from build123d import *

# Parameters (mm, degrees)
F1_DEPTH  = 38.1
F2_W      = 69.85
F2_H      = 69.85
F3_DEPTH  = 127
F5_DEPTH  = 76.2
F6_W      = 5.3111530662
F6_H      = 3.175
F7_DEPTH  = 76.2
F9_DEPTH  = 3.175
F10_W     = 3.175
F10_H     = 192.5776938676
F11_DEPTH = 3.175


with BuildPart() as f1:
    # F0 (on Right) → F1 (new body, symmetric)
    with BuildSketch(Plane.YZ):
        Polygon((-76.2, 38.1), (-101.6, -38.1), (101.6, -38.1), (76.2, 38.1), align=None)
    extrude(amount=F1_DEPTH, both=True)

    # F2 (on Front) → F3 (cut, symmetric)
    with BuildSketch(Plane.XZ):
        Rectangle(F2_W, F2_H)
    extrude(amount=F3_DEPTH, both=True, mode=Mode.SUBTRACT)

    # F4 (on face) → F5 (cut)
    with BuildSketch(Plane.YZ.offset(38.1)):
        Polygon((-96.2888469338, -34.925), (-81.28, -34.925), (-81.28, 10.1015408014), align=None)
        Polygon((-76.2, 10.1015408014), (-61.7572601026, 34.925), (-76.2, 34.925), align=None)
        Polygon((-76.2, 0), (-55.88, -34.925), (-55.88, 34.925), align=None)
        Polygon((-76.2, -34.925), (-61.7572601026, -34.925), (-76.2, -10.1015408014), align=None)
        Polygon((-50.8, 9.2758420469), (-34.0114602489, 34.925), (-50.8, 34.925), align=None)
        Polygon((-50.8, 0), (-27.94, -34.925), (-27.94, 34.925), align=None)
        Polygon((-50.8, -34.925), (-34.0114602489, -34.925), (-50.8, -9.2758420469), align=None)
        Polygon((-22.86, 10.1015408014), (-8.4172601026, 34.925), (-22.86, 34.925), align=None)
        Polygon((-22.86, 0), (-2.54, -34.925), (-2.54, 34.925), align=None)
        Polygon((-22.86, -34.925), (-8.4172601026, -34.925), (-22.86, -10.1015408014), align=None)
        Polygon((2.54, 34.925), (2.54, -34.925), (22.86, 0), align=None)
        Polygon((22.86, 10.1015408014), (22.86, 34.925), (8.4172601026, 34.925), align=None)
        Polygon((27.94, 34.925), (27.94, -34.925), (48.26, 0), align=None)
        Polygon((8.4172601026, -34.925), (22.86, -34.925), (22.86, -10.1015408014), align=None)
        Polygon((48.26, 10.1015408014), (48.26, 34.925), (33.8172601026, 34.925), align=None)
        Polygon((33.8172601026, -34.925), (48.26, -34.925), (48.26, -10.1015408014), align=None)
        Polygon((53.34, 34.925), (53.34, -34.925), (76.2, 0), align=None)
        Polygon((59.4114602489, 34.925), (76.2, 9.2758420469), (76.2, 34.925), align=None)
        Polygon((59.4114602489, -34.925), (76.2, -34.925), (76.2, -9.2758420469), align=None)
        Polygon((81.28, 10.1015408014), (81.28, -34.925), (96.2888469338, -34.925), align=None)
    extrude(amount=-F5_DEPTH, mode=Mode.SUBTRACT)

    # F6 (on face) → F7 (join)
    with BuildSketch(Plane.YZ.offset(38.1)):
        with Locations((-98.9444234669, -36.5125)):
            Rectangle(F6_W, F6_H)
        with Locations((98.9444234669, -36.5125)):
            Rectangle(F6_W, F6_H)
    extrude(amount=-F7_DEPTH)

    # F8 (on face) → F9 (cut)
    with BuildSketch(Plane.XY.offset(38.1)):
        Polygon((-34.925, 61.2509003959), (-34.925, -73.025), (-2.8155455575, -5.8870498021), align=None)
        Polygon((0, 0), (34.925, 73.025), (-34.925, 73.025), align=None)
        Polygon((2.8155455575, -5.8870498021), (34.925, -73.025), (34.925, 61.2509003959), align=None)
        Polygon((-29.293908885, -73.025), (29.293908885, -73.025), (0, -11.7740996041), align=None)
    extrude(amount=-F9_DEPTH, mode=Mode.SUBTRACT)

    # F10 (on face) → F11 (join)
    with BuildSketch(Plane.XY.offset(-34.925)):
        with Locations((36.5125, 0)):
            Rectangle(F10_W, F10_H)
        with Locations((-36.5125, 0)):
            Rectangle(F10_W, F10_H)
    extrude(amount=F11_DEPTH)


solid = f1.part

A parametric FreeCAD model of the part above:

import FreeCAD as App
import Part
import Sketcher
Q = App.Units.Quantity

doc = App.newDocument("Part")
params = doc.addObject("Spreadsheet::Sheet", "Params")
for row, (alias, value) in enumerate([
    ("sketch1_width", "8 in"),
    ("sketch1_width2", "6 in"),
    ("pad1_length", "3 in"),
    ("sketch2_width", "2.75 in"),
    ("pocket1_length", "10 in"),
    ("sketch3_height", "2.75 in"),
    ("pocket2_length", "3 in"),
    ("sketch4_height", "0.125 in"),
    ("pad2_length", "3 in"),
    ("sketch5_width", "2.75 in"),
    ("pocket3_length", "0.125 in"),
    ("sketch6_width", "0.125 in"),
    ("pad3_length", "0.125 in"),
], start=1):
    params.set(f"A{row}", alias)
    params.set(f"B{row}", "=" + value)
    params.setAlias(f"B{row}", alias)

body = doc.addObject("PartDesign::Body", "Body")

sketch1 = body.newObject("Sketcher::SketchObject", "Sketch")
sketch1.AttachmentSupport = (doc.getObject("YZ_Plane"), [""])
sketch1.MapMode = "FlatFace"
sketch1.addGeometry([
    Part.LineSegment(App.Vector(-76, 38, 0), App.Vector(-102, -38, 0)),
    Part.LineSegment(App.Vector(-102, -38, 0), App.Vector(102, -38, 0)),
    Part.LineSegment(App.Vector(102, -38, 0), App.Vector(76, 38, 0)),
    Part.LineSegment(App.Vector(76, 38, 0), App.Vector(-76, 38, 0)),
], False)
sketch1.addConstraint([
    Sketcher.Constraint("Coincident", 0, 2, 1, 1),
    Sketcher.Constraint("Coincident", 1, 2, 2, 1),
    Sketcher.Constraint("Coincident", 2, 2, 3, 1),
    Sketcher.Constraint("Coincident", 3, 2, 0, 1),
    Sketcher.Constraint("Horizontal", 1),
    Sketcher.Constraint("Horizontal", 3),
    Sketcher.Constraint("Equal", 0, 2),
    Sketcher.Constraint("DistanceX", 1, 1, 1, 2, Q("8 in")),
    Sketcher.Constraint("DistanceX", 3, 2, 3, 1, Q("6 in")),
    Sketcher.Constraint("DistanceX", 0, 2, -1, 1, Q("4 in")),
    Sketcher.Constraint("DistanceY", 1, 2, 2, 2, Q("3 in")),
    Sketcher.Constraint("DistanceY", 0, 2, -1, 1, Q("1.5 in")),
])
sketch1.setExpression("Constraints[7]", "Params.sketch1_width")
sketch1.setExpression("Constraints[8]", "Params.sketch1_width2")
pad1 = body.newObject("PartDesign::Pad", "Pad")
pad1.Profile = sketch1
pad1.setExpression("Length", "Params.pad1_length")
pad1.Midplane = True

sketch2 = body.newObject("Sketcher::SketchObject", "Sketch001")
sketch2.AttachmentSupport = (doc.getObject("XZ_Plane"), [""])
sketch2.MapMode = "FlatFace"
sketch2.addGeometry([
    Part.LineSegment(App.Vector(-35, 35, 0), App.Vector(-35, -35, 0)),
    Part.LineSegment(App.Vector(-35, -35, 0), App.Vector(35, -35, 0)),
    Part.LineSegment(App.Vector(35, -35, 0), App.Vector(35, 35, 0)),
    Part.LineSegment(App.Vector(35, 35, 0), App.Vector(-35, 35, 0)),
], False)
sketch2.addConstraint([
    Sketcher.Constraint("Coincident", 0, 2, 1, 1),
    Sketcher.Constraint("Coincident", 1, 2, 2, 1),
    Sketcher.Constraint("Coincident", 2, 2, 3, 1),
    Sketcher.Constraint("Coincident", 3, 2, 0, 1),
    Sketcher.Constraint("Vertical", 0),
    Sketcher.Constraint("Horizontal", 1),
    Sketcher.Constraint("Vertical", 2),
    Sketcher.Constraint("Horizontal", 3),
    Sketcher.Constraint("Symmetric", 0, 2, 2, 2, -1, 1),
    Sketcher.Constraint("Equal", 3, 0),
    Sketcher.Constraint("DistanceX", 1, 1, 1, 2, Q("2.75 in")),
])
sketch2.setExpression("Constraints[10]", "Params.sketch2_width")
pocket1 = body.newObject("PartDesign::Pocket", "Pocket")
pocket1.Profile = sketch2
pocket1.setExpression("Length", "Params.pocket1_length")
pocket1.Midplane = True

sketch3 = body.newObject("Sketcher::SketchObject", "Sketch002")
sketch3.AttachmentSupport = (doc.getObject("YZ_Plane"), [""])
sketch3.MapMode = "FlatFace"
sketch3.AttachmentOffset = App.Placement(App.Vector(0, 0, 1.5 * 25.4), App.Rotation())
sketch3.addGeometry([
    Part.LineSegment(App.Vector(-96, -35, 0), App.Vector(-81, -35, 0)),
    Part.LineSegment(App.Vector(-81, -35, 0), App.Vector(-81, 10, 0)),
    Part.LineSegment(App.Vector(-81, 10, 0), App.Vector(-96, -35, 0)),
    Part.LineSegment(App.Vector(-76, 10, 0), App.Vector(-62, 35, 0)),
    Part.LineSegment(App.Vector(-62, 35, 0), App.Vector(-76, 35, 0)),
    Part.LineSegment(App.Vector(-76, 35, 0), App.Vector(-76, 10, 0)),
    Part.LineSegment(App.Vector(-76, 0, 0), App.Vector(-56, -35, 0)),
    Part.LineSegment(App.Vector(-56, -35, 0), App.Vector(-56, 35, 0)),
    Part.LineSegment(App.Vector(-56, 35, 0), App.Vector(-76, 0, 0)),
    Part.LineSegment(App.Vector(-76, -35, 0), App.Vector(-62, -35, 0)),
    Part.LineSegment(App.Vector(-62, -35, 0), App.Vector(-76, -10, 0)),
    Part.LineSegment(App.Vector(-76, -10, 0), App.Vector(-76, -35, 0)),
    Part.LineSegment(App.Vector(-51, 9, 0), App.Vector(-34, 35, 0)),
    Part.LineSegment(App.Vector(-34, 35, 0), App.Vector(-51, 35, 0)),
    Part.LineSegment(App.Vector(-51, 35, 0), App.Vector(-51, 9, 0)),
    Part.LineSegment(App.Vector(-51, 0, 0), App.Vector(-28, -35, 0)),
    Part.LineSegment(App.Vector(-28, -35, 0), App.Vector(-28, 35, 0)),
    Part.LineSegment(App.Vector(-28, 35, 0), App.Vector(-51, 0, 0)),
    Part.LineSegment(App.Vector(-51, -35, 0), App.Vector(-34, -35, 0)),
    Part.LineSegment(App.Vector(-34, -35, 0), App.Vector(-51, -9, 0)),
    Part.LineSegment(App.Vector(-51, -9, 0), App.Vector(-51, -35, 0)),
    Part.LineSegment(App.Vector(-23, 10, 0), App.Vector(-8, 35, 0)),
    Part.LineSegment(App.Vector(-8, 35, 0), App.Vector(-23, 35, 0)),
    Part.LineSegment(App.Vector(-23, 35, 0), App.Vector(-23, 10, 0)),
    Part.LineSegment(App.Vector(-23, 0, 0), App.Vector(-3, -35, 0)),
    Part.LineSegment(App.Vector(-3, -35, 0), App.Vector(-3, 35, 0)),
    Part.LineSegment(App.Vector(-3, 35, 0), App.Vector(-23, 0, 0)),
    Part.LineSegment(App.Vector(-23, -35, 0), App.Vector(-8, -35, 0)),
    Part.LineSegment(App.Vector(-8, -35, 0), App.Vector(-23, -10, 0)),
    Part.LineSegment(App.Vector(-23, -10, 0), App.Vector(-23, -35, 0)),
    Part.LineSegment(App.Vector(3, 35, 0), App.Vector(3, -35, 0)),
    Part.LineSegment(App.Vector(3, -35, 0), App.Vector(23, 0, 0)),
    Part.LineSegment(App.Vector(23, 0, 0), App.Vector(3, 35, 0)),
    Part.LineSegment(App.Vector(23, 10, 0), App.Vector(23, 35, 0)),
    Part.LineSegment(App.Vector(23, 35, 0), App.Vector(8, 35, 0)),
    Part.LineSegment(App.Vector(8, 35, 0), App.Vector(23, 10, 0)),
    Part.LineSegment(App.Vector(28, 35, 0), App.Vector(28, -35, 0)),
    Part.LineSegment(App.Vector(28, -35, 0), App.Vector(48, 0, 0)),
    Part.LineSegment(App.Vector(48, 0, 0), App.Vector(28, 35, 0)),
    Part.LineSegment(App.Vector(8, -35, 0), App.Vector(23, -35, 0)),
    Part.LineSegment(App.Vector(23, -35, 0), App.Vector(23, -10, 0)),
    Part.LineSegment(App.Vector(23, -10, 0), App.Vector(8, -35, 0)),
    Part.LineSegment(App.Vector(48, 10, 0), App.Vector(48, 35, 0)),
    Part.LineSegment(App.Vector(48, 35, 0), App.Vector(34, 35, 0)),
    Part.LineSegment(App.Vector(34, 35, 0), App.Vector(48, 10, 0)),
    Part.LineSegment(App.Vector(34, -35, 0), App.Vector(48, -35, 0)),
    Part.LineSegment(App.Vector(48, -35, 0), App.Vector(48, -10, 0)),
    Part.LineSegment(App.Vector(48, -10, 0), App.Vector(34, -35, 0)),
    Part.LineSegment(App.Vector(53, 35, 0), App.Vector(53, -35, 0)),
    Part.LineSegment(App.Vector(53, -35, 0), App.Vector(76, 0, 0)),
    Part.LineSegment(App.Vector(76, 0, 0), App.Vector(53, 35, 0)),
    Part.LineSegment(App.Vector(59, 35, 0), App.Vector(76, 9, 0)),
    Part.LineSegment(App.Vector(76, 9, 0), App.Vector(76, 35, 0)),
    Part.LineSegment(App.Vector(76, 35, 0), App.Vector(59, 35, 0)),
    Part.LineSegment(App.Vector(59, -35, 0), App.Vector(76, -35, 0)),
    Part.LineSegment(App.Vector(76, -35, 0), App.Vector(76, -9, 0)),
    Part.LineSegment(App.Vector(76, -9, 0), App.Vector(59, -35, 0)),
    Part.LineSegment(App.Vector(81, 10, 0), App.Vector(81, -35, 0)),
    Part.LineSegment(App.Vector(81, -35, 0), App.Vector(96, -35, 0)),
    Part.LineSegment(App.Vector(96, -35, 0), App.Vector(81, 10, 0)),
], False)
sketch3.addConstraint([
    Sketcher.Constraint("Coincident", 0, 2, 1, 1),
    Sketcher.Constraint("Coincident", 1, 2, 2, 1),
    Sketcher.Constraint("Coincident", 2, 2, 0, 1),
    Sketcher.Constraint("Coincident", 3, 2, 4, 1),
    Sketcher.Constraint("Coincident", 4, 2, 5, 1),
    Sketcher.Constraint("Coincident", 5, 2, 3, 1),
    Sketcher.Constraint("Coincident", 6, 2, 7, 1),
    Sketcher.Constraint("Coincident", 7, 2, 8, 1),
    Sketcher.Constraint("Coincident", 8, 2, 6, 1),
    Sketcher.Constraint("Coincident", 9, 2, 10, 1),
    Sketcher.Constraint("Coincident", 10, 2, 11, 1),
    Sketcher.Constraint("Coincident", 11, 2, 9, 1),
    Sketcher.Constraint("Coincident", 12, 2, 13, 1),
    Sketcher.Constraint("Coincident", 13, 2, 14, 1),
    Sketcher.Constraint("Coincident", 14, 2, 12, 1),
    Sketcher.Constraint("Coincident", 15, 2, 16, 1),
    Sketcher.Constraint("Coincident", 16, 2, 17, 1),
    Sketcher.Constraint("Coincident", 17, 2, 15, 1),
    Sketcher.Constraint("Coincident", 18, 2, 19, 1),
    Sketcher.Constraint("Coincident", 19, 2, 20, 1),
    Sketcher.Constraint("Coincident", 20, 2, 18, 1),
    Sketcher.Constraint("Coincident", 21, 2, 22, 1),
    Sketcher.Constraint("Coincident", 22, 2, 23, 1),
    Sketcher.Constraint("Coincident", 23, 2, 21, 1),
    Sketcher.Constraint("Coincident", 24, 2, 25, 1),
    Sketcher.Constraint("Coincident", 25, 2, 26, 1),
    Sketcher.Constraint("Coincident", 26, 2, 24, 1),
    Sketcher.Constraint("Coincident", 27, 2, 28, 1),
    Sketcher.Constraint("Coincident", 28, 2, 29, 1),
    Sketcher.Constraint("Coincident", 29, 2, 27, 1),
    Sketcher.Constraint("Coincident", 30, 2, 31, 1),
    Sketcher.Constraint("Coincident", 31, 2, 32, 1),
    Sketcher.Constraint("Coincident", 32, 2, 30, 1),
    Sketcher.Constraint("Coincident", 33, 2, 34, 1),
    Sketcher.Constraint("Coincident", 34, 2, 35, 1),
    Sketcher.Constraint("Coincident", 35, 2, 33, 1),
    Sketcher.Constraint("Coincident", 36, 2, 37, 1),
    Sketcher.Constraint("Coincident", 37, 2, 38, 1),
    Sketcher.Constraint("Coincident", 38, 2, 36, 1),
    Sketcher.Constraint("Coincident", 39, 2, 40, 1),
    Sketcher.Constraint("Coincident", 40, 2, 41, 1),
    Sketcher.Constraint("Coincident", 41, 2, 39, 1),
    Sketcher.Constraint("Coincident", 42, 2, 43, 1),
    Sketcher.Constraint("Coincident", 43, 2, 44, 1),
    Sketcher.Constraint("Coincident", 44, 2, 42, 1),
    Sketcher.Constraint("Coincident", 45, 2, 46, 1),
    Sketcher.Constraint("Coincident", 46, 2, 47, 1),
    Sketcher.Constraint("Coincident", 47, 2, 45, 1),
    Sketcher.Constraint("Coincident", 48, 2, 49, 1),
    Sketcher.Constraint("Coincident", 49, 2, 50, 1),
    Sketcher.Constraint("Coincident", 50, 2, 48, 1),
    Sketcher.Constraint("Coincident", 51, 2, 52, 1),
    Sketcher.Constraint("Coincident", 52, 2, 53, 1),
    Sketcher.Constraint("Coincident", 53, 2, 51, 1),
    Sketcher.Constraint("Coincident", 54, 2, 55, 1),
    Sketcher.Constraint("Coincident", 55, 2, 56, 1),
    Sketcher.Constraint("Coincident", 56, 2, 54, 1),
    Sketcher.Constraint("Coincident", 57, 2, 58, 1),
    Sketcher.Constraint("Coincident", 58, 2, 59, 1),
    Sketcher.Constraint("Coincident", 59, 2, 57, 1),
    Sketcher.Constraint("Horizontal", 0),
    Sketcher.Constraint("Vertical", 1),
    Sketcher.Constraint("Horizontal", 4),
    Sketcher.Constraint("Vertical", 5),
    Sketcher.Constraint("Vertical", 7),
    Sketcher.Constraint("Horizontal", 9),
    Sketcher.Constraint("Vertical", 11),
    Sketcher.Constraint("Horizontal", 13),
    Sketcher.Constraint("Vertical", 14),
    Sketcher.Constraint("Vertical", 16),
    Sketcher.Constraint("Horizontal", 18),
    Sketcher.Constraint("Vertical", 20),
    Sketcher.Constraint("Horizontal", 22),
    Sketcher.Constraint("Vertical", 23),
    Sketcher.Constraint("Vertical", 25),
    Sketcher.Constraint("Horizontal", 27),
    Sketcher.Constraint("Vertical", 29),
    Sketcher.Constraint("Vertical", 30),
    Sketcher.Constraint("Vertical", 33),
    Sketcher.Constraint("Horizontal", 34),
    Sketcher.Constraint("Vertical", 36),
    Sketcher.Constraint("Horizontal", 39),
    Sketcher.Constraint("Vertical", 40),
    Sketcher.Constraint("Vertical", 42),
    Sketcher.Constraint("Horizontal", 43),
    Sketcher.Constraint("Horizontal", 45),
    Sketcher.Constraint("Vertical", 46),
    Sketcher.Constraint("Vertical", 48),
    Sketcher.Constraint("Vertical", 52),
    Sketcher.Constraint("Horizontal", 53),
    Sketcher.Constraint("Horizontal", 54),
    Sketcher.Constraint("Vertical", 55),
    Sketcher.Constraint("Vertical", 57),
    Sketcher.Constraint("Horizontal", 58),
    Sketcher.Constraint("Symmetric", 25, 2, 30, 2, -1, 1),
    Sketcher.Constraint("Symmetric", 26, 2, 31, 2, -1, 1),
    Sketcher.Constraint("Symmetric", 29, 2, 33, 2, -1, 1),
    Sketcher.Constraint("Symmetric", 16, 2, 36, 2, -1, 1),
    Sketcher.Constraint("Symmetric", 22, 2, 39, 2, -1, 1),
    Sketcher.Constraint("Symmetric", 8, 2, 49, 2, -1, 1),
    Sketcher.Constraint("Symmetric", 11, 2, 52, 2, -1, 1),
    Sketcher.Constraint("Symmetric", 4, 2, 54, 2, -1, 1),
    Sketcher.Constraint("Symmetric", 22, 2, 33, 2, -2),
    Sketcher.Constraint("Symmetric", 4, 2, 52, 2, -2),
    Sketcher.Constraint("Symmetric", 0, 2, 57, 2, -2),
    Sketcher.Constraint("Symmetric", 12, 2, 18, 2, -1),
    Sketcher.Constraint("Symmetric", 14, 2, 19, 2, -1),
    Sketcher.Constraint("Symmetric", 42, 2, 45, 2, -1),
    Sketcher.Constraint("PointOnObject", 8, 2, -1),
    Sketcher.Constraint("PointOnObject", 17, 2, -1),
    Sketcher.Constraint("PointOnObject", 26, 2, -1),
    Sketcher.Constraint("PointOnObject", 37, 2, -1),
    Sketcher.Constraint("Parallel", 3, 8),
    Sketcher.Constraint("Parallel", 6, 10),
    Sketcher.Constraint("Parallel", 12, 17),
    Sketcher.Constraint("Parallel", 15, 19),
    Sketcher.Constraint("Parallel", 8, 21),
    Sketcher.Constraint("Parallel", 10, 24),
    Sketcher.Constraint("Parallel", 21, 26),
    Sketcher.Constraint("Parallel", 24, 28),
    Sketcher.Constraint("Parallel", 28, 32),
    Sketcher.Constraint("Parallel", 32, 35),
    Sketcher.Constraint("Parallel", 31, 37),
    Sketcher.Constraint("Parallel", 35, 38),
    Sketcher.Constraint("Parallel", 37, 41),
    Sketcher.Constraint("Parallel", 38, 44),
    Sketcher.Constraint("Parallel", 41, 47),
    Sketcher.Constraint("Parallel", 17, 49),
    Sketcher.Constraint("Parallel", 19, 50),
    Sketcher.Constraint("Parallel", 50, 51),
    Sketcher.Constraint("Parallel", 49, 56),
    Sketcher.Constraint("Horizontal", 1, 2, 5, 2),
    Sketcher.Constraint("Horizontal", 2, 2, 6, 2),
    Sketcher.Constraint("Horizontal", 4, 2, 7, 2),
    Sketcher.Constraint("Horizontal", 6, 2, 9, 2),
    Sketcher.Constraint("Horizontal", 7, 2, 12, 2),
    Sketcher.Constraint("Horizontal", 11, 2, 15, 2),
    Sketcher.Constraint("Horizontal", 16, 2, 21, 2),
    Sketcher.Constraint("Horizontal", 5, 2, 23, 2),
    Sketcher.Constraint("Horizontal", 20, 2, 24, 2),
    Sketcher.Constraint("Horizontal", 10, 2, 28, 2),
    Sketcher.Constraint("Horizontal", 23, 2, 35, 2),
    Sketcher.Constraint("Horizontal", 28, 2, 40, 2),
    Sketcher.Constraint("Horizontal", 38, 2, 42, 2),
    Sketcher.Constraint("Horizontal", 35, 2, 44, 2),
    Sketcher.Constraint("Horizontal", 40, 2, 46, 2),
    Sketcher.Constraint("Horizontal", 47, 2, 48, 2),
    Sketcher.Constraint("Horizontal", 14, 2, 51, 2),
    Sketcher.Constraint("Horizontal", 19, 2, 55, 2),
    Sketcher.Constraint("Horizontal", 44, 2, 59, 2),
    Sketcher.Constraint("Vertical", 5, 2, 8, 2),
    Sketcher.Constraint("Vertical", 3, 2, 9, 2),
    Sketcher.Constraint("Vertical", 14, 2, 17, 2),
    Sketcher.Constraint("Vertical", 23, 2, 26, 2),
    Sketcher.Constraint("Vertical", 37, 2, 42, 2),
    Sketcher.Constraint("Equal", 0, 58),
    Sketcher.Constraint("DistanceX", 4, 2, -1, 1, Q("3 in")),
    Sketcher.Constraint("DistanceX", 13, 2, -1, 1, Q("2 in")),
    Sketcher.Constraint("DistanceX", 0, 2, 6, 2, Q("1 in")),
    Sketcher.Constraint("DistanceX", 15, 2, 24, 2, Q("1 in")),
    Sketcher.Constraint("DistanceX", 29, 2, 30, 2, Q("1 in")),
    Sketcher.Constraint("DistanceY", 7, 1, 7, 2, Q("2.75 in")),
    Sketcher.Constraint("DistanceX", 0, 2, -1, 1, Q("3.2 in")),
    Sketcher.Constraint("DistanceX", 4, 2, 4, 1, Q("14.44274 mm")),
    Sketcher.Constraint("DistanceX", 13, 2, 13, 1, Q("16.78854 mm")),
    Sketcher.Constraint("Distance", 2, Q("47.462141 mm")),
])
sketch3.setExpression("Constraints[161]", "Params.sketch3_height")
pocket2 = body.newObject("PartDesign::Pocket", "Pocket001")
pocket2.Profile = sketch3
pocket2.setExpression("Length", "Params.pocket2_length")

sketch4 = body.newObject("Sketcher::SketchObject", "Sketch003")
sketch4.AttachmentSupport = (doc.getObject("YZ_Plane"), [""])
sketch4.MapMode = "FlatFace"
sketch4.AttachmentOffset = App.Placement(App.Vector(0, 0, 1.5 * 25.4), App.Rotation())
sketch4.addGeometry([
    Part.LineSegment(App.Vector(-101.6, -34.9, 0), App.Vector(-101.6, -38.1, 0)),
    Part.LineSegment(App.Vector(-101.6, -38.1, 0), App.Vector(-96.3, -38.1, 0)),
    Part.LineSegment(App.Vector(-96.3, -38.1, 0), App.Vector(-96.3, -34.9, 0)),
    Part.LineSegment(App.Vector(-96.3, -34.9, 0), App.Vector(-101.6, -34.9, 0)),
    Part.LineSegment(App.Vector(96.3, -34.9, 0), App.Vector(96.3, -38.1, 0)),
    Part.LineSegment(App.Vector(96.3, -38.1, 0), App.Vector(101.6, -38.1, 0)),
    Part.LineSegment(App.Vector(101.6, -38.1, 0), App.Vector(101.6, -34.9, 0)),
    Part.LineSegment(App.Vector(101.6, -34.9, 0), App.Vector(96.3, -34.9, 0)),
], False)
sketch4.addConstraint([
    Sketcher.Constraint("Coincident", 0, 2, 1, 1),
    Sketcher.Constraint("Coincident", 1, 2, 2, 1),
    Sketcher.Constraint("Coincident", 2, 2, 3, 1),
    Sketcher.Constraint("Coincident", 3, 2, 0, 1),
    Sketcher.Constraint("Coincident", 4, 2, 5, 1),
    Sketcher.Constraint("Coincident", 5, 2, 6, 1),
    Sketcher.Constraint("Coincident", 6, 2, 7, 1),
    Sketcher.Constraint("Coincident", 7, 2, 4, 1),
    Sketcher.Constraint("Vertical", 0),
    Sketcher.Constraint("Horizontal", 1),
    Sketcher.Constraint("Vertical", 2),
    Sketcher.Constraint("Horizontal", 3),
    Sketcher.Constraint("Vertical", 4),
    Sketcher.Constraint("Horizontal", 5),
    Sketcher.Constraint("Vertical", 6),
    Sketcher.Constraint("Horizontal", 7),
    Sketcher.Constraint("Symmetric", 1, 2, 4, 2, -2),
    Sketcher.Constraint("Symmetric", 3, 2, 6, 2, -2),
    Sketcher.Constraint("DistanceX", 0, 2, -1, 1, Q("4 in")),
    Sketcher.Constraint("DistanceY", 0, 2, -1, 1, Q("1.5 in")),
    Sketcher.Constraint("DistanceY", 0, 2, 0, 1, Q("0.125 in")),
    Sketcher.Constraint("DistanceX", 1, 1, 1, 2, Q("5.311153 mm")),
])
sketch4.setExpression("Constraints[20]", "Params.sketch4_height")
pad2 = body.newObject("PartDesign::Pad", "Pad001")
pad2.Profile = sketch4
pad2.setExpression("Length", "Params.pad2_length")
pad2.Reversed = True

sketch5 = body.newObject("Sketcher::SketchObject", "Sketch004")
sketch5.AttachmentSupport = (doc.getObject("XY_Plane"), [""])
sketch5.MapMode = "FlatFace"
sketch5.AttachmentOffset = App.Placement(App.Vector(0, 0, 1.5 * 25.4), App.Rotation())
sketch5.addGeometry([
    Part.LineSegment(App.Vector(-35, 61, 0), App.Vector(-35, -73, 0)),
    Part.LineSegment(App.Vector(-35, -73, 0), App.Vector(-3, -6, 0)),
    Part.LineSegment(App.Vector(-3, -6, 0), App.Vector(-35, 61, 0)),
    Part.LineSegment(App.Vector(0, 0, 0), App.Vector(35, 73, 0)),
    Part.LineSegment(App.Vector(35, 73, 0), App.Vector(-35, 73, 0)),
    Part.LineSegment(App.Vector(-35, 73, 0), App.Vector(0, 0, 0)),
    Part.LineSegment(App.Vector(3, -6, 0), App.Vector(35, -73, 0)),
    Part.LineSegment(App.Vector(35, -73, 0), App.Vector(35, 61, 0)),
    Part.LineSegment(App.Vector(35, 61, 0), App.Vector(3, -6, 0)),
    Part.LineSegment(App.Vector(-29, -73, 0), App.Vector(29, -73, 0)),
    Part.LineSegment(App.Vector(29, -73, 0), App.Vector(0, -12, 0)),
    Part.LineSegment(App.Vector(0, -12, 0), App.Vector(-29, -73, 0)),
], False)
sketch5.addConstraint([
    Sketcher.Constraint("Coincident", 0, 2, 1, 1),
    Sketcher.Constraint("Coincident", 1, 2, 2, 1),
    Sketcher.Constraint("Coincident", 2, 2, 0, 1),
    Sketcher.Constraint("Coincident", 3, 2, 4, 1),
    Sketcher.Constraint("Coincident", 4, 2, 5, 1),
    Sketcher.Constraint("Coincident", 5, 2, 3, 1),
    Sketcher.Constraint("Coincident", 6, 2, 7, 1),
    Sketcher.Constraint("Coincident", 7, 2, 8, 1),
    Sketcher.Constraint("Coincident", 8, 2, 6, 1),
    Sketcher.Constraint("Coincident", 9, 2, 10, 1),
    Sketcher.Constraint("Coincident", 10, 2, 11, 1),
    Sketcher.Constraint("Coincident", 11, 2, 9, 1),
    Sketcher.Constraint("Vertical", 0),
    Sketcher.Constraint("Horizontal", 4),
    Sketcher.Constraint("Vertical", 7),
    Sketcher.Constraint("Horizontal", 9),
    Sketcher.Constraint("Coincident", 5, 2, -1, 1),
    Sketcher.Constraint("Symmetric", 0, 2, 3, 2, -1, 1),
    Sketcher.Constraint("Symmetric", 4, 2, 6, 2, -1, 1),
    Sketcher.Constraint("Symmetric", 2, 2, 7, 2, -2),
    Sketcher.Constraint("Symmetric", 1, 2, 8, 2, -2),
    Sketcher.Constraint("PointOnObject", 10, 2, -2),
    Sketcher.Constraint("Parallel", 1, 3),
    Sketcher.Constraint("Parallel", 2, 5),
    Sketcher.Constraint("Parallel", 6, 10),
    Sketcher.Constraint("Parallel", 8, 11),
    Sketcher.Constraint("Horizontal", 6, 2, 9, 2),
    Sketcher.Constraint("DistanceX", 4, 2, 4, 1, Q("2.75 in")),
    Sketcher.Constraint("DistanceY", 0, 2, 3, 2, Q("5.75 in")),
    Sketcher.Constraint("DistanceY", 0, 2, 0, 1, Q("134.2759 mm")),
    Sketcher.Constraint("DistanceY", 10, 2, -1, 1, Q("11.7741 mm")),
])
sketch5.setExpression("Constraints[27]", "Params.sketch5_width")
pocket3 = body.newObject("PartDesign::Pocket", "Pocket002")
pocket3.Profile = sketch5
pocket3.setExpression("Length", "Params.pocket3_length")

sketch6 = body.newObject("Sketcher::SketchObject", "Sketch005")
sketch6.AttachmentSupport = (doc.getObject("XY_Plane"), [""])
sketch6.MapMode = "FlatFace"
sketch6.AttachmentOffset = App.Placement(App.Vector(0, 0, -1.375 * 25.4), App.Rotation())
sketch6.addGeometry([
    Part.LineSegment(App.Vector(34.9, 96.3, 0), App.Vector(34.9, -96.3, 0)),
    Part.LineSegment(App.Vector(34.9, -96.3, 0), App.Vector(38.1, -96.3, 0)),
    Part.LineSegment(App.Vector(38.1, -96.3, 0), App.Vector(38.1, 96.3, 0)),
    Part.LineSegment(App.Vector(38.1, 96.3, 0), App.Vector(34.9, 96.3, 0)),
    Part.LineSegment(App.Vector(-38.1, 96.3, 0), App.Vector(-38.1, -96.3, 0)),
    Part.LineSegment(App.Vector(-38.1, -96.3, 0), App.Vector(-34.9, -96.3, 0)),
    Part.LineSegment(App.Vector(-34.9, -96.3, 0), App.Vector(-34.9, 96.3, 0)),
    Part.LineSegment(App.Vector(-34.9, 96.3, 0), App.Vector(-38.1, 96.3, 0)),
], False)
sketch6.addConstraint([
    Sketcher.Constraint("Coincident", 0, 2, 1, 1),
    Sketcher.Constraint("Coincident", 1, 2, 2, 1),
    Sketcher.Constraint("Coincident", 2, 2, 3, 1),
    Sketcher.Constraint("Coincident", 3, 2, 0, 1),
    Sketcher.Constraint("Coincident", 4, 2, 5, 1),
    Sketcher.Constraint("Coincident", 5, 2, 6, 1),
    Sketcher.Constraint("Coincident", 6, 2, 7, 1),
    Sketcher.Constraint("Coincident", 7, 2, 4, 1),
    Sketcher.Constraint("Vertical", 0),
    Sketcher.Constraint("Horizontal", 1),
    Sketcher.Constraint("Vertical", 2),
    Sketcher.Constraint("Horizontal", 3),
    Sketcher.Constraint("Vertical", 4),
    Sketcher.Constraint("Horizontal", 5),
    Sketcher.Constraint("Vertical", 6),
    Sketcher.Constraint("Horizontal", 7),
    Sketcher.Constraint("Symmetric", 2, 2, 4, 2, -1, 1),
    Sketcher.Constraint("Symmetric", 0, 2, 6, 2, -1, 1),
    Sketcher.Constraint("Horizontal", 1, 2, 4, 2),
    Sketcher.Constraint("DistanceX", 4, 2, 1, 2, Q("3 in")),
    Sketcher.Constraint("DistanceX", 1, 1, 1, 2, Q("0.125 in")),
    Sketcher.Constraint("DistanceY", 0, 2, 0, 1, Q("192.577694 mm")),
])
sketch6.setExpression("Constraints[20]", "Params.sketch6_width")
pad3 = body.newObject("PartDesign::Pad", "Pad002")
pad3.Profile = sketch6
pad3.setExpression("Length", "Params.pad3_length")

doc.recompute()
